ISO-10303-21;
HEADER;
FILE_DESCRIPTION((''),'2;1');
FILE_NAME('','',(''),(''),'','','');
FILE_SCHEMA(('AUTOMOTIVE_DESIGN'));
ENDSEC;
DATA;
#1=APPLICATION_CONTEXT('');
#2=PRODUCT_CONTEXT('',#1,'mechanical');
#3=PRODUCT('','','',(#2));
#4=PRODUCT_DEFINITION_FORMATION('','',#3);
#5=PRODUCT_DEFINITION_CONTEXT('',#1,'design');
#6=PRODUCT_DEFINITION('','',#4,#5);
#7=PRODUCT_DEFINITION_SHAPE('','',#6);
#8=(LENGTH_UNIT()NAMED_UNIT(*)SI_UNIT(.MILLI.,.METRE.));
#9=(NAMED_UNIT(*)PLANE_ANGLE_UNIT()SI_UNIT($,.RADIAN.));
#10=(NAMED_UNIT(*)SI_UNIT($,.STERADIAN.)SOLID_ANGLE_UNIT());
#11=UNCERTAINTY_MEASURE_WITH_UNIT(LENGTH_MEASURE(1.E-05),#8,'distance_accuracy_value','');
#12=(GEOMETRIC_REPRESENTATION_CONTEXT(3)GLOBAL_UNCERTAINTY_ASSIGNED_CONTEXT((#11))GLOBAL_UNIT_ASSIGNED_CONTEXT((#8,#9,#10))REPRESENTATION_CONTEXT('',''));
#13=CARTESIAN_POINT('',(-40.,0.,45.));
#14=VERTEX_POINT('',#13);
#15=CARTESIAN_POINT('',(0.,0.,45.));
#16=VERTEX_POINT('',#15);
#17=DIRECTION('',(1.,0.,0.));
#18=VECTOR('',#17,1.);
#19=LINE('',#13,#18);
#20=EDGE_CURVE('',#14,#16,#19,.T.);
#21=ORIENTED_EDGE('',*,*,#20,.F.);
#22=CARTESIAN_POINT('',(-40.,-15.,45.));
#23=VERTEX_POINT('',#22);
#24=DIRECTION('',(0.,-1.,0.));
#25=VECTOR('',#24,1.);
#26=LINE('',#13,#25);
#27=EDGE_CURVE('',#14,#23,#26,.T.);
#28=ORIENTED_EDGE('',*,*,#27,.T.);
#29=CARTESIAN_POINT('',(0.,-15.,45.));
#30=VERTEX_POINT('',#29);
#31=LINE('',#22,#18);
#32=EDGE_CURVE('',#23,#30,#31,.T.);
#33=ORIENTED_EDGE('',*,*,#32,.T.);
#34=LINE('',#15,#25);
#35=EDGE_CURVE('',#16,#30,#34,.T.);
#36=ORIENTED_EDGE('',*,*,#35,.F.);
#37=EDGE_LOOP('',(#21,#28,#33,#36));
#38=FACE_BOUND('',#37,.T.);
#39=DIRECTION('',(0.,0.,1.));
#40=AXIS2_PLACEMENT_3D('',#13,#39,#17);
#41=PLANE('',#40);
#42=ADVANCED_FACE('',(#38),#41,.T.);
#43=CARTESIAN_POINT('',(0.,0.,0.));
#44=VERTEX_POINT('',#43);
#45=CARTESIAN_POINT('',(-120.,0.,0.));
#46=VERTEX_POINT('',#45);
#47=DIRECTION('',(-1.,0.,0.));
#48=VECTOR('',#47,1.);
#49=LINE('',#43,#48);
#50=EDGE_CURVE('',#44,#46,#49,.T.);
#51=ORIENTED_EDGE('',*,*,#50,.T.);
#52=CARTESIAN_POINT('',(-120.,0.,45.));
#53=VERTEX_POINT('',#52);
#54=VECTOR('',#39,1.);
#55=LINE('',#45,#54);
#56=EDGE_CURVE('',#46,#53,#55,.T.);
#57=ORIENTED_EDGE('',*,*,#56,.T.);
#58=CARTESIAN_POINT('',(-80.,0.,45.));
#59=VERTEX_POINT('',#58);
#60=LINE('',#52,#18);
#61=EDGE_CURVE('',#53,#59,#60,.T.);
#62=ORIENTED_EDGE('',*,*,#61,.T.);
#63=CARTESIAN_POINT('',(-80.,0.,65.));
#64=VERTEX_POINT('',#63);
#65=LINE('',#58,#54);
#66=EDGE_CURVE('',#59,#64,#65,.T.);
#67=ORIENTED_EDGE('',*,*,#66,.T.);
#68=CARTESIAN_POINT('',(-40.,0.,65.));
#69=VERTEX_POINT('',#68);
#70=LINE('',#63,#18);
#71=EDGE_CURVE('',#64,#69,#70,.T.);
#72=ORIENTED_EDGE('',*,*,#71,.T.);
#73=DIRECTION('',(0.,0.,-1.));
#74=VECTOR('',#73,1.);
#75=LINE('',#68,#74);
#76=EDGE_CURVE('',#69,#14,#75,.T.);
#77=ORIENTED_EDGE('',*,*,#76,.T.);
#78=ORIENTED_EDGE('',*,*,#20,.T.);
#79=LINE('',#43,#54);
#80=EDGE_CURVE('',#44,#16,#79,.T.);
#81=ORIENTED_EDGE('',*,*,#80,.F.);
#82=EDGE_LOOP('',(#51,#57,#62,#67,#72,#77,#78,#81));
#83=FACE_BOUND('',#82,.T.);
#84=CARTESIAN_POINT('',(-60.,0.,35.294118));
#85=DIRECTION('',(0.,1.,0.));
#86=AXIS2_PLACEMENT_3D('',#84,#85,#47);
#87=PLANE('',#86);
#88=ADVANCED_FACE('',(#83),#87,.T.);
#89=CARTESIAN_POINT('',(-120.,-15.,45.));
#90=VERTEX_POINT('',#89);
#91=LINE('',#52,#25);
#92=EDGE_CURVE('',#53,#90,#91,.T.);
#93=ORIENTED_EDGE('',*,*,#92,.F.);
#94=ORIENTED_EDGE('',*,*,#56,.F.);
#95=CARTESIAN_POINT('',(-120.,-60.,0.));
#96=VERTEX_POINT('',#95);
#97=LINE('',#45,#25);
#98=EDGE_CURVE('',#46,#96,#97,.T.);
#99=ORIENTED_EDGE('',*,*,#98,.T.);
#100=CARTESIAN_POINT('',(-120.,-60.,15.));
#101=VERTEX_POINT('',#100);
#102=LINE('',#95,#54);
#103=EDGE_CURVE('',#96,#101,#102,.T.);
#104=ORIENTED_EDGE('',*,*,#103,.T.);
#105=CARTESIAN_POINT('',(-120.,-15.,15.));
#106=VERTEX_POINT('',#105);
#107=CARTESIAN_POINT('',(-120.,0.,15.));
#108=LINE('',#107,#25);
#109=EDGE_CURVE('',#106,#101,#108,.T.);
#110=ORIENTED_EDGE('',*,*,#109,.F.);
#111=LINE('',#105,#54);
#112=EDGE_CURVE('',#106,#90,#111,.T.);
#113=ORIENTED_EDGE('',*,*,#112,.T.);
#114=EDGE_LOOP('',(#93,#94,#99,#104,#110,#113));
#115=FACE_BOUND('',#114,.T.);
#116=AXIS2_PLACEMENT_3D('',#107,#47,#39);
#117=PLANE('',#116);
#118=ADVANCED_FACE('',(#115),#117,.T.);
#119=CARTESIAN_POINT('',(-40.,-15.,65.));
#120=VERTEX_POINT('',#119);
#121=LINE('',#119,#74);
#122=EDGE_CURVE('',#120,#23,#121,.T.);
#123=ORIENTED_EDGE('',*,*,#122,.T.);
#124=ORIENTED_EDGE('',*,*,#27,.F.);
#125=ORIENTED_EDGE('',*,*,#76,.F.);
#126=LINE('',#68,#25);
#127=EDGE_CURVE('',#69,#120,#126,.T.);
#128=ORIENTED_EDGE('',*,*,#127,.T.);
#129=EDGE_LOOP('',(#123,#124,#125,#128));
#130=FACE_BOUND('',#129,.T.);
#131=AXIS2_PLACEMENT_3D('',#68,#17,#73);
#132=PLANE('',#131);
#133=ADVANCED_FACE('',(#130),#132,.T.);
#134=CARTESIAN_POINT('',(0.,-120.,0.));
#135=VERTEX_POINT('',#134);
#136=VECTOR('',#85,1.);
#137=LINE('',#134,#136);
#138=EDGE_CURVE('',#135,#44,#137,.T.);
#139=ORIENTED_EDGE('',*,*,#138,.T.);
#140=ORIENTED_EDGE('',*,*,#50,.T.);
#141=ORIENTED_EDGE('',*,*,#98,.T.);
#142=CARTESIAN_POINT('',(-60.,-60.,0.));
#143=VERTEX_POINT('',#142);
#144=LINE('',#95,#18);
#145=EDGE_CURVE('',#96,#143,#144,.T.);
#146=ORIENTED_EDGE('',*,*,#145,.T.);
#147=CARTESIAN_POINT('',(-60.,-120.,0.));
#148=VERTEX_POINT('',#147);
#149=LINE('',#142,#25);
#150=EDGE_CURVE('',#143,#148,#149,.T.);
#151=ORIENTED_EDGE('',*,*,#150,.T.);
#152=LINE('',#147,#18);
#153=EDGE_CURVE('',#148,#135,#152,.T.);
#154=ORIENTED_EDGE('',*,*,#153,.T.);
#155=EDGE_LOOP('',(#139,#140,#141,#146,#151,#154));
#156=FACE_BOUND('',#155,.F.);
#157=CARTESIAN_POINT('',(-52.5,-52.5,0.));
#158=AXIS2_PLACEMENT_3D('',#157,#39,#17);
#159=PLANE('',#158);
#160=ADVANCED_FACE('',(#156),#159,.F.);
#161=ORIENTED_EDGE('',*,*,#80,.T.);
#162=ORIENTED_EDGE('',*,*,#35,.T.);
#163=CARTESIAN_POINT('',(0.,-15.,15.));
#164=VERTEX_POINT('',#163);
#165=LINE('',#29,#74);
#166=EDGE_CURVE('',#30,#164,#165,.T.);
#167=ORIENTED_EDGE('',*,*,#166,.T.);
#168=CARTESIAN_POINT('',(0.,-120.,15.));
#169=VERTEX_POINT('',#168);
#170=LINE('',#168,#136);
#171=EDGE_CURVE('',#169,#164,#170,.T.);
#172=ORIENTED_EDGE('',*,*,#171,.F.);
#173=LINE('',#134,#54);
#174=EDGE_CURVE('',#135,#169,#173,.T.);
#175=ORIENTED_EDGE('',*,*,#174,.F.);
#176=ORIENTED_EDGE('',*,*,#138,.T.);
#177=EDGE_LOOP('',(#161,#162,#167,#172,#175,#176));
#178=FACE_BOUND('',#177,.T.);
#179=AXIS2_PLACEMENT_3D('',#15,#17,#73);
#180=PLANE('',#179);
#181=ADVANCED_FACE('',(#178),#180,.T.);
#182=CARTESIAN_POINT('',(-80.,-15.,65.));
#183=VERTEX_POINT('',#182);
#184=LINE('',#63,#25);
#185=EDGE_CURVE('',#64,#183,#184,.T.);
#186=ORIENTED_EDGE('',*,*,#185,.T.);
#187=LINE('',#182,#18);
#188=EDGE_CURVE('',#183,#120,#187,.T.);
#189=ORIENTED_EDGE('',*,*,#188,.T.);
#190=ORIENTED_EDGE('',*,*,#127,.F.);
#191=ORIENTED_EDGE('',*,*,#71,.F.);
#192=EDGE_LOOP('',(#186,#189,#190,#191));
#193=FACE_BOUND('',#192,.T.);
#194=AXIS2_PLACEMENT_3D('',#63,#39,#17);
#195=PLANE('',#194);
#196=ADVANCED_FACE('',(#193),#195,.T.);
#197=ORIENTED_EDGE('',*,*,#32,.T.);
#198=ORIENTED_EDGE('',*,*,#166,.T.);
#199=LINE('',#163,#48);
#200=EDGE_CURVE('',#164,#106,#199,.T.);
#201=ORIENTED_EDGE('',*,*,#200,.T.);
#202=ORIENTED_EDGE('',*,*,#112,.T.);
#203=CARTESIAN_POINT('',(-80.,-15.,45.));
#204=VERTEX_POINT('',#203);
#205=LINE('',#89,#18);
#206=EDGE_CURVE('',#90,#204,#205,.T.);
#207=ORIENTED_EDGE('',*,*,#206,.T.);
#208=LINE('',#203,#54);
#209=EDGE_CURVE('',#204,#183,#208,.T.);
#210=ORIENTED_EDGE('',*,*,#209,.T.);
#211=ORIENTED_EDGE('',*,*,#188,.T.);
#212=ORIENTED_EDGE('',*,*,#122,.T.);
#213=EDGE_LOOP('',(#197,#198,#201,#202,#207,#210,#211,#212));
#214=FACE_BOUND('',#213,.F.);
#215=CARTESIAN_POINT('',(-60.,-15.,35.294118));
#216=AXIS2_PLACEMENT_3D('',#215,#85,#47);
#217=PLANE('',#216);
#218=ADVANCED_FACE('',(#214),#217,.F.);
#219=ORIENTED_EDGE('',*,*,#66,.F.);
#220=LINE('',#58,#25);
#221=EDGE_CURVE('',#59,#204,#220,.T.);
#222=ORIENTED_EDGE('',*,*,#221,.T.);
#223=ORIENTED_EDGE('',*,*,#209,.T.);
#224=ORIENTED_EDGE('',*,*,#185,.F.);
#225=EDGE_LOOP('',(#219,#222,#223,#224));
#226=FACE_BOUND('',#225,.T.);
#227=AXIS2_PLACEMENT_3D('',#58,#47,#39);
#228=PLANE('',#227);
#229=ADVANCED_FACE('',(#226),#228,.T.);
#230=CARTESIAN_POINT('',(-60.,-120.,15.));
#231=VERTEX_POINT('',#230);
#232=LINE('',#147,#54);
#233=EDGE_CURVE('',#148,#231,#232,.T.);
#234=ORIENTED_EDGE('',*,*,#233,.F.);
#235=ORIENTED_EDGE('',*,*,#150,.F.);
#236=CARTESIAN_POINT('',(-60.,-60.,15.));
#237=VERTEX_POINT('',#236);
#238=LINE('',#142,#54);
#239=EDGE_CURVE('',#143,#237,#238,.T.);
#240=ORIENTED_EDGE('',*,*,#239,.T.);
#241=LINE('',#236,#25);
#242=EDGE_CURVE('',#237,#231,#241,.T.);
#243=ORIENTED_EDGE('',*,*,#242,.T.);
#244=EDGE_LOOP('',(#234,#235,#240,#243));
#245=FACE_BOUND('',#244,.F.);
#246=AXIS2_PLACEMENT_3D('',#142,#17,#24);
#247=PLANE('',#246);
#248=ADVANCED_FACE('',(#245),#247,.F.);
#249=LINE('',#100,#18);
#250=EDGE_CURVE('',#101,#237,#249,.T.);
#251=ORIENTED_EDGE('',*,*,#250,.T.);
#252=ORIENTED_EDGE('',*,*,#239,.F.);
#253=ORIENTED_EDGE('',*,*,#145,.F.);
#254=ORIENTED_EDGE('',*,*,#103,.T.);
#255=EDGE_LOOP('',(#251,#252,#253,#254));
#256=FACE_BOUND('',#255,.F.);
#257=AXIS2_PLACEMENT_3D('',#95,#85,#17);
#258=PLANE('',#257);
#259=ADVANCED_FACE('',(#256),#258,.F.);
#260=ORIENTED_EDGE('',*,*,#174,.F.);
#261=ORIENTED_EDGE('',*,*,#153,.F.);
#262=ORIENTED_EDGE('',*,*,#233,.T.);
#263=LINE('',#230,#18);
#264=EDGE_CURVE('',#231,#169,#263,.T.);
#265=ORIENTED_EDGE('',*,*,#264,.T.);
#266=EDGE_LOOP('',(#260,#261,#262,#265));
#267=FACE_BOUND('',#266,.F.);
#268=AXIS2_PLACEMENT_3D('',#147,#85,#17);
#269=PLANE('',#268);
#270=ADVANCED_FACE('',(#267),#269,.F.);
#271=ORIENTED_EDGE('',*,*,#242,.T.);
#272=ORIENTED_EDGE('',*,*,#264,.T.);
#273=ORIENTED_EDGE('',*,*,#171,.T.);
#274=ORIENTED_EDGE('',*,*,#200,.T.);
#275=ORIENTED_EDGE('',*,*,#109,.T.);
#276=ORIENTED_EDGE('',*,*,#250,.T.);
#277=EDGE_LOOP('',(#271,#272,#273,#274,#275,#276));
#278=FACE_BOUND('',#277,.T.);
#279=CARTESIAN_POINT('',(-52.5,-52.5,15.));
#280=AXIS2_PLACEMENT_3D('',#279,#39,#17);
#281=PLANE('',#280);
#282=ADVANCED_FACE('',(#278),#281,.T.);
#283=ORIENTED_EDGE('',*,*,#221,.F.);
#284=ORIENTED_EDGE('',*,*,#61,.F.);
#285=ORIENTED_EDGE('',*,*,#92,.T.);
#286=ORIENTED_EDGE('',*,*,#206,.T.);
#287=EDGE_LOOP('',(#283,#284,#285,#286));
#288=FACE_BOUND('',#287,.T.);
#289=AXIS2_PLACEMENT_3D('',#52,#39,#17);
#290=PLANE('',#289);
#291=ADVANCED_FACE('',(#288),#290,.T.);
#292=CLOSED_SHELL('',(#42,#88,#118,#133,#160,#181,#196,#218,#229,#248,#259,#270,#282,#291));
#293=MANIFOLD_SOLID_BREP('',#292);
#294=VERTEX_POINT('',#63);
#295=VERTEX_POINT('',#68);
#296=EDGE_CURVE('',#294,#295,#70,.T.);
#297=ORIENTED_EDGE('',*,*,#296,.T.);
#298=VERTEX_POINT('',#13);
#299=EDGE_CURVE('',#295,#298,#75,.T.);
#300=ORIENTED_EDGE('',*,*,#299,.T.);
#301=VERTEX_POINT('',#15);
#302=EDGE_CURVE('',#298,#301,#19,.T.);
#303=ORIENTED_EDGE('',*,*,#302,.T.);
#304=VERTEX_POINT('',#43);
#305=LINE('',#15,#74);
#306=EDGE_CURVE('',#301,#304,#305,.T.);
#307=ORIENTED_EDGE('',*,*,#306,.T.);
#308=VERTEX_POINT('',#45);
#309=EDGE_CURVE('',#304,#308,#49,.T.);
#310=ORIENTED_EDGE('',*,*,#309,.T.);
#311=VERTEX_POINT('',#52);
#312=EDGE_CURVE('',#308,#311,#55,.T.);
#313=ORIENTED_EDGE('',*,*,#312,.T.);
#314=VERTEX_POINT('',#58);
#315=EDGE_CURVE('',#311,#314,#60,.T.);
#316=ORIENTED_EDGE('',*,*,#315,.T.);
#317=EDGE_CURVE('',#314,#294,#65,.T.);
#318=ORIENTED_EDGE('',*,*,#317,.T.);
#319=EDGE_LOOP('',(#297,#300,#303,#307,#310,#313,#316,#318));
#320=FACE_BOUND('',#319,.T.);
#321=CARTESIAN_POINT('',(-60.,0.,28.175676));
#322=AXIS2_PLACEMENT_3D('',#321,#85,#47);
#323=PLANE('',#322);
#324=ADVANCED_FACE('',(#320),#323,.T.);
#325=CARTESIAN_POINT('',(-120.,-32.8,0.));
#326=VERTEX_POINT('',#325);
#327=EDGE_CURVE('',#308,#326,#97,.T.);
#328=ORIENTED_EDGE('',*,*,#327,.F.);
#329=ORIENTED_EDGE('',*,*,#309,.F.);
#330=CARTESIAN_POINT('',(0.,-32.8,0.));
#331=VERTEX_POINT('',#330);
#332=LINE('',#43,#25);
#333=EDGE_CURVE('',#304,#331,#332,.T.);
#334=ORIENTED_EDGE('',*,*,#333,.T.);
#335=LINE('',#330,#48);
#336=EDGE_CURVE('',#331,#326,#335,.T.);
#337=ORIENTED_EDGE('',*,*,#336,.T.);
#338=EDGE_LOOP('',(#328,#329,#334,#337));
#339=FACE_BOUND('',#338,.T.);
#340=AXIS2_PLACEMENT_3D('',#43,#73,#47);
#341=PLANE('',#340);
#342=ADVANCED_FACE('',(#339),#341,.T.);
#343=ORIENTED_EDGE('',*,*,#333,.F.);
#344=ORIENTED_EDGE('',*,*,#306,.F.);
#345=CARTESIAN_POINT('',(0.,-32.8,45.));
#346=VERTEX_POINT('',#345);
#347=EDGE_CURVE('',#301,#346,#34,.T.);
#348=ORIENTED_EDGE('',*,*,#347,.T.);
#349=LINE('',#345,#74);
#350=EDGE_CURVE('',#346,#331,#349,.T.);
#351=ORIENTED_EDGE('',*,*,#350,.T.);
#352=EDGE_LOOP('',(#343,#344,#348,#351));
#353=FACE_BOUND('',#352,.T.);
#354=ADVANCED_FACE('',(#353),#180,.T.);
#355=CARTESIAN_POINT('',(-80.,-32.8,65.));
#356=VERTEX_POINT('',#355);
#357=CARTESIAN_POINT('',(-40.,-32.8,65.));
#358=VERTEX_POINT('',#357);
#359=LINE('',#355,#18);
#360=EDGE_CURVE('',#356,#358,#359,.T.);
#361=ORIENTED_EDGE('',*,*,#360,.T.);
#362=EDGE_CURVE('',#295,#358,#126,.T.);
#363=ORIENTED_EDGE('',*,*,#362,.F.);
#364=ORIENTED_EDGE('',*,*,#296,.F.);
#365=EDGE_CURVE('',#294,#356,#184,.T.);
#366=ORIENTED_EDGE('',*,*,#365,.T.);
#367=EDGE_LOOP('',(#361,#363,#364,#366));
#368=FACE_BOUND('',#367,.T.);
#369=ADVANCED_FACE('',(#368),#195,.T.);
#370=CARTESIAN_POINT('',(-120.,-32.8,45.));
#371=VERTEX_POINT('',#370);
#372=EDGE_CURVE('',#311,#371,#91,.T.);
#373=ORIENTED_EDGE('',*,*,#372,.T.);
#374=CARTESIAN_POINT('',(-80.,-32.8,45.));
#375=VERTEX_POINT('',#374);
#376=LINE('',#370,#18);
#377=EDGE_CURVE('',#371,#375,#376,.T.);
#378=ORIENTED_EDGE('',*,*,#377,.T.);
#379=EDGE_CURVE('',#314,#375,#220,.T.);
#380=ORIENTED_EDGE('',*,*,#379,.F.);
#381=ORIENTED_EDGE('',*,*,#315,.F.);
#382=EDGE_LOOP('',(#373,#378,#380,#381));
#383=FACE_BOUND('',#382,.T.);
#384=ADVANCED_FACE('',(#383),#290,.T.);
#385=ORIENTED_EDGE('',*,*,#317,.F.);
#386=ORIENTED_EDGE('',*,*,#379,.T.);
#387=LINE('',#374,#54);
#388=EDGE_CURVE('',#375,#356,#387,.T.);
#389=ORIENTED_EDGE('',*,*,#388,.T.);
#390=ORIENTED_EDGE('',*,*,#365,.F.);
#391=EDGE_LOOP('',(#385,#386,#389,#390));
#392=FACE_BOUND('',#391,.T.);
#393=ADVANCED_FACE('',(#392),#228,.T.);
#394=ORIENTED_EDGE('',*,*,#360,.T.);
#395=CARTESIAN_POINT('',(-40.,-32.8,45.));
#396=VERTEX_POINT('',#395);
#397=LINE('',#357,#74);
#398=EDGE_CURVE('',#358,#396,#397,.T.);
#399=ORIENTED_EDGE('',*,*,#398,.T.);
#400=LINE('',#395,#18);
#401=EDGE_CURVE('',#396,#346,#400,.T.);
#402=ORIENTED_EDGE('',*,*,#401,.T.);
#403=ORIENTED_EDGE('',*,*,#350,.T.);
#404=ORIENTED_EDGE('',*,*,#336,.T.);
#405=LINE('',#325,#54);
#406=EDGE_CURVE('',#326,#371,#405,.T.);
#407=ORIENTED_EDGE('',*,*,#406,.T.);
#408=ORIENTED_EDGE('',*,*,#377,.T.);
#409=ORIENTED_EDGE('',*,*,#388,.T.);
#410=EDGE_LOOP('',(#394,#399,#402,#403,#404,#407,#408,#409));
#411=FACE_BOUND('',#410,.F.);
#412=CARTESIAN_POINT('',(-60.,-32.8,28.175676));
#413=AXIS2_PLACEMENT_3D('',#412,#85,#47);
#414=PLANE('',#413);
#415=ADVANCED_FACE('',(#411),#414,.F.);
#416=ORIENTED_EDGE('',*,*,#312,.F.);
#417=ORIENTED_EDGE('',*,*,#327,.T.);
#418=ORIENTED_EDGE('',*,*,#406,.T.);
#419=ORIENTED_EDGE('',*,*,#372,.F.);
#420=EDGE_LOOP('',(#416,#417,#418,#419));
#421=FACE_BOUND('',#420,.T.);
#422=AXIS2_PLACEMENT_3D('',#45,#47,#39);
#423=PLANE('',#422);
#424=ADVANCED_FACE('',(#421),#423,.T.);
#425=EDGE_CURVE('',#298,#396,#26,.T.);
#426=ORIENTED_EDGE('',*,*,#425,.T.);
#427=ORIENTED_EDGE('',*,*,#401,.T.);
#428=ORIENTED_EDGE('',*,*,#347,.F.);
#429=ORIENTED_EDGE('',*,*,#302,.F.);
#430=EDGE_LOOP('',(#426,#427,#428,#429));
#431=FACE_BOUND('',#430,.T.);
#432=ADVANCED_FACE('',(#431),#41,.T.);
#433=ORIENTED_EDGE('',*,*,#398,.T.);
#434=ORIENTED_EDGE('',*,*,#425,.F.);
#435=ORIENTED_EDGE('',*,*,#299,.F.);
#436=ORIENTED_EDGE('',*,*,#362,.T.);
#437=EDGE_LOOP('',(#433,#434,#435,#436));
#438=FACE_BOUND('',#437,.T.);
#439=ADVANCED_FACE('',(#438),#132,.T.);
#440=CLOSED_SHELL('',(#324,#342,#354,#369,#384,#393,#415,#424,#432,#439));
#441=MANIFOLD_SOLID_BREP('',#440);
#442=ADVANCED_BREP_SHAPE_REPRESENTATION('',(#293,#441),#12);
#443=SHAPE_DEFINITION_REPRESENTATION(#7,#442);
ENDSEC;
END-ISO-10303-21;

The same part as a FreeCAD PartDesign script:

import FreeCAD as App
import Part
import Sketcher

V = App.Vector
Q = App.Units.Quantity

doc = App.newDocument("Part")
body = doc.addObject("PartDesign::Body", "Body")

# Sketch on XY plane
sketch1 = doc.addObject("Sketcher::SketchObject", "Sketch")
body.addObject(sketch1)
sketch1.AttachmentSupport = (doc.XY_Plane, [""])
sketch1.MapMode = "FlatFace"
sketch1.addGeometry([
    Part.LineSegment(V(0, -120, 0), V(0, 0, 0)),  # 0
    Part.LineSegment(V(0, 0, 0), V(-120, 0, 0)),  # 1
    Part.LineSegment(V(-120, 0, 0), V(-120, -60, 0)),  # 2
    Part.LineSegment(V(-120, -60, 0), V(-60, -60, 0)),  # 3
    Part.LineSegment(V(-60, -60, 0), V(-60, -120, 0)),  # 4
    Part.LineSegment(V(-60, -120, 0), V(0, -120, 0)),  # 5
], False)
sketch1.addConstraint([
    Sketcher.Constraint("Coincident", 0, 2, 1, 1),
    Sketcher.Constraint("Coincident", 1, 2, 2, 1),
    Sketcher.Constraint("Coincident", 2, 2, 3, 1),
    Sketcher.Constraint("Coincident", 3, 2, 4, 1),
    Sketcher.Constraint("Coincident", 4, 2, 5, 1),
    Sketcher.Constraint("Coincident", 5, 2, 0, 1),
    Sketcher.Constraint("Vertical", 0),
    Sketcher.Constraint("Horizontal", 1),
    Sketcher.Constraint("Vertical", 2),
    Sketcher.Constraint("Horizontal", 3),
    Sketcher.Constraint("Vertical", 4),
    Sketcher.Constraint("Horizontal", 5),
    Sketcher.Constraint("Coincident", 0, 2, -1, 1),
    Sketcher.Constraint("Equal", 3, 5),
    Sketcher.Constraint("Equal", 1, 0),
    Sketcher.Constraint("Equal", 5, 2),
    Sketcher.Constraint("DistanceX", 1, 2, 1, 1, Q("120 mm")),
])
pad1 = doc.addObject("PartDesign::Pad", "Pad")
body.addObject(pad1)
pad1.Profile = sketch1
pad1.Length = 15

# Sketch on XZ plane
sketch2 = doc.addObject("Sketcher::SketchObject", "Sketch001")
body.addObject(sketch2)
sketch2.AttachmentSupport = (doc.XZ_Plane, [""])
sketch2.MapMode = "FlatFace"
sketch2.addGeometry([
    Part.LineSegment(V(0, 45, 0), V(0, 15, 0)),  # 0
    Part.LineSegment(V(0, 15, 0), V(-120, 15, 0)),  # 1
    Part.LineSegment(V(-120, 15, 0), V(-120, 45, 0)),  # 2
    Part.LineSegment(V(-120, 45, 0), V(-80, 45, 0)),  # 3
    Part.LineSegment(V(-80, 45, 0), V(-80, 65, 0)),  # 4
    Part.LineSegment(V(-80, 65, 0), V(-40, 65, 0)),  # 5
    Part.LineSegment(V(-40, 65, 0), V(-40, 45, 0)),  # 6
    Part.LineSegment(V(-40, 45, 0), V(0, 45, 0)),  # 7
], False)
sketch2.addConstraint([
    Sketcher.Constraint("Coincident", 0, 2, 1, 1),
    Sketcher.Constraint("Coincident", 1, 2, 2, 1),
    Sketcher.Constraint("Coincident", 2, 2, 3, 1),
    Sketcher.Constraint("Coincident", 3, 2, 4, 1),
    Sketcher.Constraint("Coincident", 4, 2, 5, 1),
    Sketcher.Constraint("Coincident", 5, 2, 6, 1),
    Sketcher.Constraint("Coincident", 6, 2, 7, 1),
    Sketcher.Constraint("Coincident", 7, 2, 0, 1),
    Sketcher.Constraint("Vertical", 0),
    Sketcher.Constraint("Horizontal", 1),
    Sketcher.Constraint("Vertical", 2),
    Sketcher.Constraint("Horizontal", 3),
    Sketcher.Constraint("Vertical", 4),
    Sketcher.Constraint("Horizontal", 5),
    Sketcher.Constraint("Vertical", 6),
    Sketcher.Constraint("Horizontal", 7),
    Sketcher.Constraint("PointOnObject", 0, 2, -2),
    Sketcher.Constraint("Horizontal", 3, 2, 6, 2),
    Sketcher.Constraint("Equal", 3, 5),
    Sketcher.Constraint("Equal", 5, 7),
    Sketcher.Constraint("DistanceX", 1, 2, 1, 1, Q("120 mm")),
    Sketcher.Constraint("DistanceY", 0, 2, 0, 1, Q("30 mm")),
    Sketcher.Constraint("DistanceY", 4, 1, 4, 2, Q("20 mm")),
    Sketcher.Constraint("DistanceY", -1, 1, 0, 2, Q("15 mm")),
])
pad2 = doc.addObject("PartDesign::Pad", "Pad001")
body.addObject(pad2)
pad2.Profile = sketch2
pad2.Length = 15
body2 = doc.addObject("PartDesign::Body", "Body001")

# Sketch on XZ plane
sketch3 = doc.addObject("Sketcher::SketchObject", "Sketch002")
body2.addObject(sketch3)
sketch3.AttachmentSupport = (doc.getObject("XZ_Plane001"), [""])
sketch3.MapMode = "FlatFace"
sketch3.addGeometry([
    Part.LineSegment(V(0, 45, 0), V(0, 0, 0)),  # 0
    Part.LineSegment(V(0, 0, 0), V(-120, 0, 0)),  # 1
    Part.LineSegment(V(-120, 0, 0), V(-120, 45, 0)),  # 2
    Part.LineSegment(V(-120, 45, 0), V(-80, 45, 0)),  # 3
    Part.LineSegment(V(-80, 45, 0), V(-80, 65, 0)),  # 4
    Part.LineSegment(V(-80, 65, 0), V(-40, 65, 0)),  # 5
    Part.LineSegment(V(-40, 65, 0), V(-40, 45, 0)),  # 6
    Part.LineSegment(V(-40, 45, 0), V(0, 45, 0)),  # 7
], False)
sketch3.addConstraint([
    Sketcher.Constraint("Coincident", 0, 2, 1, 1),
    Sketcher.Constraint("Coincident", 1, 2, 2, 1),
    Sketcher.Constraint("Coincident", 2, 2, 3, 1),
    Sketcher.Constraint("Coincident", 3, 2, 4, 1),
    Sketcher.Constraint("Coincident", 4, 2, 5, 1),
    Sketcher.Constraint("Coincident", 5, 2, 6, 1),
    Sketcher.Constraint("Coincident", 6, 2, 7, 1),
    Sketcher.Constraint("Coincident", 7, 2, 0, 1),
    Sketcher.Constraint("Vertical", 0),
    Sketcher.Constraint("Horizontal", 1),
    Sketcher.Constraint("Vertical", 2),
    Sketcher.Constraint("Horizontal", 3),
    Sketcher.Constraint("Vertical", 4),
    Sketcher.Constraint("Horizontal", 5),
    Sketcher.Constraint("Vertical", 6),
    Sketcher.Constraint("Horizontal", 7),
    Sketcher.Constraint("Coincident", 0, 2, -1, 1),
    Sketcher.Constraint("Horizontal", 3, 2, 6, 2),
    Sketcher.Constraint("Equal", 3, 5),
    Sketcher.Constraint("Equal", 5, 7),
    Sketcher.Constraint("DistanceX", 1, 2, 1, 1, Q("120 mm")),
    Sketcher.Constraint("DistanceY", 0, 2, 0, 1, Q("45 mm")),
    Sketcher.Constraint("DistanceY", 4, 1, 4, 2, Q("20 mm")),
])
pad3 = doc.addObject("PartDesign::Pad", "Pad002")
body2.addObject(pad3)
pad3.Profile = sketch3
pad3.Length = 32.8

doc.recompute()
